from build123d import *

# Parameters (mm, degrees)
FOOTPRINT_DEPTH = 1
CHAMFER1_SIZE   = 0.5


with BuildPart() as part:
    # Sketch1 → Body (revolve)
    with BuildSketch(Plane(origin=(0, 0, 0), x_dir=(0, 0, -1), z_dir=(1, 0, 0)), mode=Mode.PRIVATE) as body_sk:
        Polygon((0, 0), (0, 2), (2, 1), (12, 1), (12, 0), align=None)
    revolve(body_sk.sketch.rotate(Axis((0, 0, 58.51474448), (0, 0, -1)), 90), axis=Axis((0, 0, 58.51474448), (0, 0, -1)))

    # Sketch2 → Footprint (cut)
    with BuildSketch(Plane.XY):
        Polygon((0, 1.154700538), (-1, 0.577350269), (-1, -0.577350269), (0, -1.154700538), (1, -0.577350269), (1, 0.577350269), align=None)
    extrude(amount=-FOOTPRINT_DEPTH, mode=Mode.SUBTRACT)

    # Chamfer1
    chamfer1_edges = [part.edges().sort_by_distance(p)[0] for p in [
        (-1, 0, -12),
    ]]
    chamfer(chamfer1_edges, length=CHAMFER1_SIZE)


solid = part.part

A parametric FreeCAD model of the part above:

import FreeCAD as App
import Part
import Sketcher
Q = App.Units.Quantity


def edges_at(feature, points):
    """Names of the edges that pass closest to the given points."""
    edges = feature.Shape.Edges
    near = lambda p: min(range(len(edges)), key=lambda i: edges[i].distToShape(Part.Vertex(*p))[0])
    return sorted({f"Edge{near(p) + 1}" for p in points})

doc = App.newDocument("Part")
body = doc.addObject("PartDesign::Body", "Body")

# Sketch on YZ plane
sketch1 = doc.addObject("Sketcher::SketchObject", "Sketch")
body.addObject(sketch1)
sketch1.AttachmentSupport = (doc.YZ_Plane, [""])
sketch1.MapMode = "FlatFace"
sketch1.addGeometry(Part.LineSegment(App.Vector(2, 0, 0), App.Vector(0, 0, 0)), False)
sketch1.addGeometry(Part.LineSegment(App.Vector(0, 0, 0), App.Vector(0, -12, 0)), False)
sketch1.addGeometry(Part.LineSegment(App.Vector(0, -12, 0), App.Vector(1, -12, 0)), False)
sketch1.addGeometry(Part.LineSegment(App.Vector(1, -12, 0), App.Vector(1, -2, 0)), False)
sketch1.addGeometry(Part.LineSegment(App.Vector(1, -2, 0), App.Vector(2, 0, 0)), False)
sketch1.addConstraint(Sketcher.Constraint("Coincident", 0, 2, 1, 1))
sketch1.addConstraint(Sketcher.Constraint("Coincident", 1, 2, 2, 1))
sketch1.addConstraint(Sketcher.Constraint("Coincident", 2, 2, 3, 1))
sketch1.addConstraint(Sketcher.Constraint("Coincident", 3, 2, 4, 1))
sketch1.addConstraint(Sketcher.Constraint("Coincident", 4, 2, 0, 1))
sketch1.addConstraint(Sketcher.Constraint("Horizontal", 0))
sketch1.addConstraint(Sketcher.Constraint("Vertical", 1))
sketch1.addConstraint(Sketcher.Constraint("Horizontal", 2))
sketch1.addConstraint(Sketcher.Constraint("Vertical", 3))
sketch1.addConstraint(Sketcher.Constraint("Coincident", 0, 2, -1, 1))
sketch1.addConstraint(Sketcher.Constraint("DistanceX", 0, 2, 0, 1, Q("2 mm")))
sketch1.addConstraint(Sketcher.Constraint("DistanceX", 2, 1, 2, 2, Q("1 mm")))
sketch1.addConstraint(Sketcher.Constraint("DistanceY", 1, 2, 1, 1, Q("12 mm")))
sketch1.addConstraint(Sketcher.Constraint("DistanceY", 3, 1, 3, 2, Q("10 mm")))
revolution = doc.addObject("PartDesign::Revolution", "Revolution")
body.addObject(revolution)
revolution.Profile = sketch1
revolution.ReferenceAxis = (sketch1, ["V_Axis"])
revolution.Angle = 360

# Sketch on XY plane
sketch2 = doc.addObject("Sketcher::SketchObject", "Sketch001")
body.addObject(sketch2)
sketch2.AttachmentSupport = (doc.XY_Plane, [""])
sketch2.MapMode = "FlatFace"
sketch2.addGeometry(Part.LineSegment(App.Vector(0, 1.2, 0), App.Vector(-1, 0.6, 0)), False)
sketch2.addGeometry(Part.LineSegment(App.Vector(-1, 0.6, 0), App.Vector(-1, -0.6, 0)), False)
sketch2.addGeometry(Part.LineSegment(App.Vector(-1, -0.6, 0), App.Vector(0, -1.2, 0)), False)
sketch2.addGeometry(Part.LineSegment(App.Vector(0, -1.2, 0), App.Vector(1, -0.6, 0)), False)
sketch2.addGeometry(Part.LineSegment(App.Vector(1, -0.6, 0), App.Vector(1, 0.6, 0)), False)
sketch2.addGeometry(Part.LineSegment(App.Vector(1, 0.6, 0), App.Vector(0, 1.2, 0)), False)
sketch2.addConstraint(Sketcher.Constraint("Coincident", 0, 2, 1, 1))
sketch2.addConstraint(Sketcher.Constraint("Coincident", 1, 2, 2, 1))
sketch2.addConstraint(Sketcher.Constraint("Coincident", 2, 2, 3, 1))
sketch2.addConstraint(Sketcher.Constraint("Coincident", 3, 2, 4, 1))
sketch2.addConstraint(Sketcher.Constraint("Coincident", 4, 2, 5, 1))
sketch2.addConstraint(Sketcher.Constraint("Coincident", 5, 2, 0, 1))
sketch2.addConstraint(Sketcher.Constraint("Vertical", 1))
sketch2.addConstraint(Sketcher.Constraint("Vertical", 4))
sketch2.addConstraint(Sketcher.Constraint("Symmetric", 0, 2, 3, 2, -1, 1))
sketch2.addConstraint(Sketcher.Constraint("Symmetric", 2, 2, 5, 2, -1, 1))
sketch2.addConstraint(Sketcher.Constraint("PointOnObject", 2, 2, -2))
sketch2.addConstraint(Sketcher.Constraint("Parallel", 2, 5))
sketch2.addConstraint(Sketcher.Constraint("Horizontal", 1, 2, 3, 2))
sketch2.addConstraint(Sketcher.Constraint("Angle", 0, Q("-150 deg")))
sketch2.addConstraint(Sketcher.Constraint("DistanceX", 0, 2, -1, 1, Q("1 mm")))
sketch2.addConstraint(Sketcher.Constraint("DistanceY", 1, 2, 1, 1, Q("1.154701 mm")))
pocket1 = doc.addObject("PartDesign::Pocket", "Pocket")
body.addObject(pocket1)
pocket1.Profile = sketch2
pocket1.Length = 1
doc.recompute()

chamfer = doc.addObject("PartDesign::Chamfer", "Chamfer")
body.addObject(chamfer)
chamfer.Base = (pocket1, edges_at(pocket1, [(-1, 0, -12)]))
chamfer.Size = 0.5

doc.recompute()
